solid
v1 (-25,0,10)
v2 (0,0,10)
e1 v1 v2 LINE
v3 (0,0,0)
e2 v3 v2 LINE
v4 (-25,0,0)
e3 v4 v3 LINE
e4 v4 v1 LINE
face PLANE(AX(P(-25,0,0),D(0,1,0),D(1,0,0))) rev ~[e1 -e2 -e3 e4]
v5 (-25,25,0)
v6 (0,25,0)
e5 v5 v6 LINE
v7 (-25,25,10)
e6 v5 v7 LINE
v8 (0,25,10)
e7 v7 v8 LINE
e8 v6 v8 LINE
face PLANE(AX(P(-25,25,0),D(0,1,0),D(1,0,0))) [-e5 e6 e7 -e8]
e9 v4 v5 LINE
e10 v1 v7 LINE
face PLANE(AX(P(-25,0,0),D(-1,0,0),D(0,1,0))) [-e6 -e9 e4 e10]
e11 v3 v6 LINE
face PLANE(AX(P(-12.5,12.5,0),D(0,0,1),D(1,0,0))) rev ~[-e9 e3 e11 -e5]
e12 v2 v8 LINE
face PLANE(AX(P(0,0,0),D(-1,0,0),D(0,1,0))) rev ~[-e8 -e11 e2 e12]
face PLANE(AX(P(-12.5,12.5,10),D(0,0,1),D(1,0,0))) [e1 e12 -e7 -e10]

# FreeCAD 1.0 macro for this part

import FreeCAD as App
import Part
import Sketcher

V = App.Vector
Q = App.Units.Quantity

doc = App.newDocument("Part")
body = doc.addObject("PartDesign::Body", "Body")

sketch1 = body.newObject("Sketcher::SketchObject", "Sketch")
sketch1.AttachmentSupport = (doc.getObject("XY_Plane"), [""])
sketch1.MapMode = "FlatFace"
sketch1.addGeometry([
    Part.LineSegment(V(-25, 25, 0), V(-25, 0, 0)),
    Part.LineSegment(V(-25, 0, 0), V(0, 0, 0)),
    Part.LineSegment(V(0, 0, 0), V(0, 25, 0)),
    Part.LineSegment(V(0, 25, 0), V(-25, 25, 0)),
], False)
sketch1.addConstraint([
    Sketcher.Constraint("Coincident", 0, 2, 1, 1),
    Sketcher.Constraint("Coincident", 1, 2, 2, 1),
    Sketcher.Constraint("Coincident", 2, 2, 3, 1),
    Sketcher.Constraint("Coincident", 3, 2, 0, 1),
    Sketcher.Constraint("Vertical", 0),
    Sketcher.Constraint("Horizontal", 1),
    Sketcher.Constraint("Vertical", 2),
    Sketcher.Constraint("Horizontal", 3),
    Sketcher.Constraint("Coincident", 1, 2, -1, 1),
    Sketcher.Constraint("Equal", 3, 0),
    Sketcher.Constraint("DistanceX", 1, 1, 1, 2, Q("25 mm")),
])
pad1 = body.newObject("PartDesign::Pad", "Pad")
pad1.Profile = sketch1
pad1.Length = 25.4
body2 = doc.addObject("PartDesign::Body", "Body001")

sketch2 = body2.newObject("Sketcher::SketchObject", "Sketch001")
sketch2.AttachmentSupport = (doc.getObject("XY_Plane001"), [""])
sketch2.MapMode = "FlatFace"
sketch2.addGeometry([
    Part.LineSegment(V(-25, 25, 0), V(-25, 0, 0)),
    Part.LineSegment(V(-25, 0, 0), V(0, 0, 0)),
    Part.LineSegment(V(0, 0, 0), V(0, 25, 0)),
    Part.LineSegment(V(0, 25, 0), V(-25, 25, 0)),
], False)
sketch2.addConstraint([
    Sketcher.Constraint("Coincident", 0, 2, 1, 1),
    Sketcher.Constraint("Coincident", 1, 2, 2, 1),
    Sketcher.Constraint("Coincident", 2, 2, 3, 1),
    Sketcher.Constraint("Coincident", 3, 2, 0, 1),
    Sketcher.Constraint("Vertical", 0),
    Sketcher.Constraint("Horizontal", 1),
    Sketcher.Constraint("Vertical", 2),
    Sketcher.Constraint("Horizontal", 3),
    Sketcher.Constraint("Coincident", 1, 2, -1, 1),
    Sketcher.Constraint("Equal", 3, 0),
    Sketcher.Constraint("DistanceX", 1, 1, 1, 2, Q("25 mm")),
])
pad2 = body2.newObject("PartDesign::Pad", "Pad001")
pad2.Profile = sketch2
pad2.Length = 10
body.Visibility = False

doc.recompute()
